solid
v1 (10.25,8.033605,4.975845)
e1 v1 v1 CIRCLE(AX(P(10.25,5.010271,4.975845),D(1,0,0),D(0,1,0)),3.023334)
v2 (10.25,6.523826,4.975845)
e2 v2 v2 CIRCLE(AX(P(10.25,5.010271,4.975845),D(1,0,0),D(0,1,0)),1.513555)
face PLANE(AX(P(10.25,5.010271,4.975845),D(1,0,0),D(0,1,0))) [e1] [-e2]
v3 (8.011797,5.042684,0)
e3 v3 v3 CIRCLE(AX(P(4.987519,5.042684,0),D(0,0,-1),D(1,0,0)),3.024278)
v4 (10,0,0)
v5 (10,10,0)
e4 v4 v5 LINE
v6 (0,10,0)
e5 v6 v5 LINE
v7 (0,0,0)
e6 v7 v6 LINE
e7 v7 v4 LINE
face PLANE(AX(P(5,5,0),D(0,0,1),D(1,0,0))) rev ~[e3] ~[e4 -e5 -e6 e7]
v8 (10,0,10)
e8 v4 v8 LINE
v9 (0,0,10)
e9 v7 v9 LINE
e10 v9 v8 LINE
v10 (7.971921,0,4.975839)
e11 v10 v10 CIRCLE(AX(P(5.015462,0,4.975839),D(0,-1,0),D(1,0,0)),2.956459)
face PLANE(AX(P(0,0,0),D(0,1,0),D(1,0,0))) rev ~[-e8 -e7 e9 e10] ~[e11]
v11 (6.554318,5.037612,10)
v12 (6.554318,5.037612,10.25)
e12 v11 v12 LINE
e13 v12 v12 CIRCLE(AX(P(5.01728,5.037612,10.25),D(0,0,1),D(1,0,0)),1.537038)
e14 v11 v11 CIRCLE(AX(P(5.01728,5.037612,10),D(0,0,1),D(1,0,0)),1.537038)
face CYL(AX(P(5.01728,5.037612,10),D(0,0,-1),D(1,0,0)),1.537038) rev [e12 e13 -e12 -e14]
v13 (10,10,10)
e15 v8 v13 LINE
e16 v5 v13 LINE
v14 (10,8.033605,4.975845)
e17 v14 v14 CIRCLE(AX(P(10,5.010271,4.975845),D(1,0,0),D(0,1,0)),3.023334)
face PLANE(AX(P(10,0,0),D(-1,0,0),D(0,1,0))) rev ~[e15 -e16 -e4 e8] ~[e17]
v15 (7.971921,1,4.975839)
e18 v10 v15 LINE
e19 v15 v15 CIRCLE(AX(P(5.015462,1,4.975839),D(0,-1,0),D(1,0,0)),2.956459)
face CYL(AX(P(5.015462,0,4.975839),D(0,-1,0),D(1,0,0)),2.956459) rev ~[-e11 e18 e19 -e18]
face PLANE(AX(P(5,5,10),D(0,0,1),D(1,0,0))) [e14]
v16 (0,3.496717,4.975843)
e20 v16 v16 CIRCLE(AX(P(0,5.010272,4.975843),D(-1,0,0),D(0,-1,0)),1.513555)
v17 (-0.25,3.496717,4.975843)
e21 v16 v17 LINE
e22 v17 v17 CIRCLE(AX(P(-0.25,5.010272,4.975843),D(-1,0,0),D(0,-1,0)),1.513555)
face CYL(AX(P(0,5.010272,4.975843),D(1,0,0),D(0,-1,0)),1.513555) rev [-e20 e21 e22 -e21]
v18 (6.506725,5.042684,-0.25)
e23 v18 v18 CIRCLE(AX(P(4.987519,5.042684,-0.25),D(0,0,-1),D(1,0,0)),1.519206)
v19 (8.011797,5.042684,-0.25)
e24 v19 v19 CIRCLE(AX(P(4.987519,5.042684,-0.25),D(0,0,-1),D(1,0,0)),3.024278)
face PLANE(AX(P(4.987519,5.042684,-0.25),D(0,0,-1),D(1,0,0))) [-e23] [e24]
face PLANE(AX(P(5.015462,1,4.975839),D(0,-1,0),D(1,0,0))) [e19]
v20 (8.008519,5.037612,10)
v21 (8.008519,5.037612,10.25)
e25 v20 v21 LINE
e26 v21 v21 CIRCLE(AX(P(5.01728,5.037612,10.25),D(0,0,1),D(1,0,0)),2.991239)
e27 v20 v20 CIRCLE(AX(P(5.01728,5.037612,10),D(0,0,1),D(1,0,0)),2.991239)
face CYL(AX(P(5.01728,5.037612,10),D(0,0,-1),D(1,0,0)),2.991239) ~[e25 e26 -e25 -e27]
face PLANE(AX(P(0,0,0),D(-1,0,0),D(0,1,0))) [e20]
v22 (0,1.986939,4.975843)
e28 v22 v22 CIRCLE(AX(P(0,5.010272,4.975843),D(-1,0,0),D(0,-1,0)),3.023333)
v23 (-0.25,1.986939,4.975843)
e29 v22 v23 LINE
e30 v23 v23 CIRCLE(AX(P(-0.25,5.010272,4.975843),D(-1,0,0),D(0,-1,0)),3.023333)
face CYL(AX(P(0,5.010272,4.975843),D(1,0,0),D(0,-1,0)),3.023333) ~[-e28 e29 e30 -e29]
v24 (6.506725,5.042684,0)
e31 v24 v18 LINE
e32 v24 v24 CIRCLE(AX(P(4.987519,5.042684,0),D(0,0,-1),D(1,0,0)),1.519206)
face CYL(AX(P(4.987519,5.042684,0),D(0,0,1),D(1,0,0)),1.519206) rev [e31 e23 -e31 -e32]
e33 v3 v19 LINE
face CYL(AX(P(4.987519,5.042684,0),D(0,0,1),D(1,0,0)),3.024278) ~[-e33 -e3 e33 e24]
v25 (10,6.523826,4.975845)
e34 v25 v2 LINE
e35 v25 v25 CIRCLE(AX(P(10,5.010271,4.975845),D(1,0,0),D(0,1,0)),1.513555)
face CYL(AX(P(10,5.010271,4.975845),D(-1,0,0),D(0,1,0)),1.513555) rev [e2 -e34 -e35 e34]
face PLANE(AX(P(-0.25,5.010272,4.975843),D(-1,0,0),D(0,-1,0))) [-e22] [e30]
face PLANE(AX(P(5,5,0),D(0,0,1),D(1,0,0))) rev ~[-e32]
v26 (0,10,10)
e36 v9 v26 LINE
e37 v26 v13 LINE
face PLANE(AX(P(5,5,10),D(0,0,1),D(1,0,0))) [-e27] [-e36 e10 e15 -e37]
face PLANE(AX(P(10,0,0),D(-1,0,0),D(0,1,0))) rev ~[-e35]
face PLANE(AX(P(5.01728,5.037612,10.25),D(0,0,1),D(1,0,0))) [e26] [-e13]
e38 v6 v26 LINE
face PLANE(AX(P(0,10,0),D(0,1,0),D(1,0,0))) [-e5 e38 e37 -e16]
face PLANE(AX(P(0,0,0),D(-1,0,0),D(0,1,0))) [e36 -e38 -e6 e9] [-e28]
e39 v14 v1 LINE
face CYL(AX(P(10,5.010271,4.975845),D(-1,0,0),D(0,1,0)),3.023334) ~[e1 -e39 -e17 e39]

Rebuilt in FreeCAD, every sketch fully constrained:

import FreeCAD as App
import Part
import Sketcher

V = App.Vector

doc = App.newDocument("Part")
body = doc.addObject("PartDesign::Body", "Body")

# Sketch on XY plane
sketch1 = doc.addObject("Sketcher::SketchObject", "Sketch")
body.addObject(sketch1)
sketch1.AttachmentSupport = (doc.XY_Plane, [""])
sketch1.MapMode = "FlatFace"
sketch1.addGeometry(Part.LineSegment(V(0, 10, 0), V(0, 0, 0)), False)
sketch1.addGeometry(Part.LineSegment(V(0, 0, 0), V(10, 0, 0)), False)
sketch1.addGeometry(Part.LineSegment(V(10, 0, 0), V(10, 10, 0)), False)
sketch1.addGeometry(Part.LineSegment(V(10, 10, 0), V(0, 10, 0)), False)
sketch1.addConstraint(Sketcher.Constraint("Coincident", 0, 2, 1, 1))
sketch1.addConstraint(Sketcher.Constraint("Coincident", 1, 2, 2, 1))
sketch1.addConstraint(Sketcher.Constraint("Coincident", 2, 2, 3, 1))
sketch1.addConstraint(Sketcher.Constraint("Coincident", 3, 2, 0, 1))
sketch1.addConstraint(Sketcher.Constraint("Vertical", 0))
sketch1.addConstraint(Sketcher.Constraint("Horizontal", 1))
sketch1.addConstraint(Sketcher.Constraint("Vertical", 2))
sketch1.addConstraint(Sketcher.Constraint("Horizontal", 3))
sketch1.addConstraint(Sketcher.Constraint("Coincident", 0, 2, -1, 1))
sketch1.addConstraint(Sketcher.Constraint("Equal", 3, 0))
sketch1.addConstraint(Sketcher.Constraint("DistanceX", 1, 1, 1, 2, 10.0))
pad1 = doc.addObject("PartDesign::Pad", "Pad")
body.addObject(pad1)
pad1.Profile = sketch1
pad1.Length = 10

# Sketch on XY plane
sketch2 = doc.addObject("Sketcher::SketchObject", "Sketch001")
body.addObject(sketch2)
sketch2.AttachmentSupport = (doc.XY_Plane, [""])
sketch2.MapMode = "FlatFace"
sketch2.AttachmentOffset = App.Placement(V(0, 0, 10), App.Rotation())
sketch2.addGeometry(Part.Circle(V(5.01728, 5.037612, 0), V(0, 0, 1), 2.991239), False)
sketch2.addGeometry(Part.Circle(V(5.01728, 5.037612, 0), V(0, 0, 1), 1.537038), False)
sketch2.addConstraint(Sketcher.Constraint("Coincident", 1, 3, 0, 3))
sketch2.addConstraint(Sketcher.Constraint("Diameter", 0, 5.982478))
sketch2.addConstraint(Sketcher.Constraint("Diameter", 1, 3.074076))
sketch2.addConstraint(Sketcher.Constraint("DistanceX", -1, 1, 0, 3, 5.01728))
sketch2.addConstraint(Sketcher.Constraint("DistanceY", -1, 1, 0, 3, 5.037612))
pad2 = doc.addObject("PartDesign::Pad", "Pad001")
body.addObject(pad2)
pad2.Profile = sketch2
pad2.Length = 0.25

# Sketch on XY plane
sketch3 = doc.addObject("Sketcher::SketchObject", "Sketch002")
body.addObject(sketch3)
sketch3.AttachmentSupport = (doc.XY_Plane, [""])
sketch3.MapMode = "FlatFace"
sketch3.addGeometry(Part.Circle(V(4.987519, 5.042684, 0), V(0, 0, 1), 3.024278), False)
sketch3.addGeometry(Part.Circle(V(4.987519, 5.042684, 0), V(0, 0, 1), 1.519206), False)
sketch3.addConstraint(Sketcher.Constraint("Coincident", 1, 3, 0, 3))
sketch3.addConstraint(Sketcher.Constraint("Diameter", 0, 6.048556))
sketch3.addConstraint(Sketcher.Constraint("Diameter", 1, 3.038412))
sketch3.addConstraint(Sketcher.Constraint("DistanceX", -1, 1, 0, 3, 4.987519))
sketch3.addConstraint(Sketcher.Constraint("DistanceY", -1, 1, 0, 3, 5.042684))
pad3 = doc.addObject("PartDesign::Pad", "Pad002")
body.addObject(pad3)
pad3.Profile = sketch3
pad3.Length = 0.25
pad3.Reversed = True

# Sketch on YZ plane
sketch4 = doc.addObject("Sketcher::SketchObject", "Sketch003")
body.addObject(sketch4)
sketch4.AttachmentSupport = (doc.YZ_Plane, [""])
sketch4.MapMode = "FlatFace"
sketch4.AttachmentOffset = App.Placement(V(0, 0, 10), App.Rotation())
sketch4.addGeometry(Part.Circle(V(5.010271, 4.975845, 0), V(0, 0, 1), 3.023334), False)
sketch4.addGeometry(Part.Circle(V(5.010271, 4.975845, 0), V(0, 0, 1), 1.513555), False)
sketch4.addConstraint(Sketcher.Constraint("Coincident", 1, 3, 0, 3))
sketch4.addConstraint(Sketcher.Constraint("Diameter", 0, 6.046668))
sketch4.addConstraint(Sketcher.Constraint("Diameter", 1, 3.02711))
sketch4.addConstraint(Sketcher.Constraint("DistanceX", -1, 1, 0, 3, 5.010271))
sketch4.addConstraint(Sketcher.Constraint("DistanceY", -1, 1, 0, 3, 4.975845))
pad4 = doc.addObject("PartDesign::Pad", "Pad003")
body.addObject(pad4)
pad4.Profile = sketch4
pad4.Length = 0.25

# Sketch on YZ plane
sketch5 = doc.addObject("Sketcher::SketchObject", "Sketch004")
body.addObject(sketch5)
sketch5.AttachmentSupport = (doc.YZ_Plane, [""])
sketch5.MapMode = "FlatFace"
sketch5.addGeometry(Part.Circle(V(5.010272, 4.975843, 0), V(0, 0, 1), 3.023333), False)
sketch5.addGeometry(Part.Circle(V(5.010272, 4.975843, 0), V(0, 0, 1), 1.513555), False)
sketch5.addConstraint(Sketcher.Constraint("Coincident", 1, 3, 0, 3))
sketch5.addConstraint(Sketcher.Constraint("Diameter", 1, 3.02711))
sketch5.addConstraint(Sketcher.Constraint("Diameter", 0, 6.046666))
sketch5.addConstraint(Sketcher.Constraint("DistanceX", -1, 1, 0, 3, 5.010272))
sketch5.addConstraint(Sketcher.Constraint("DistanceY", -1, 1, 0, 3, 4.975843))
pad5 = doc.addObject("PartDesign::Pad", "Pad004")
body.addObject(pad5)
pad5.Profile = sketch5
pad5.Length = 0.25
pad5.Reversed = True

# Sketch on XZ plane
sketch6 = doc.addObject("Sketcher::SketchObject", "Sketch005")
body.addObject(sketch6)
sketch6.AttachmentSupport = (doc.XZ_Plane, [""])
sketch6.MapMode = "FlatFace"
sketch6.addGeometry(Part.Circle(V(5.015462, 4.975839, 0), V(0, 0, 1), 2.956459), False)
sketch6.addConstraint(Sketcher.Constraint("Diameter", 0, 5.912918))
sketch6.addConstraint(Sketcher.Constraint("DistanceY", -1, 1, 0, 3, 4.975839))
sketch6.addConstraint(Sketcher.Constraint("DistanceX", -1, 1, 0, 3, 5.015462))
pocket1 = doc.addObject("PartDesign::Pocket", "Pocket")
body.addObject(pocket1)
pocket1.Profile = sketch6
pocket1.Length = 1

doc.recompute()
